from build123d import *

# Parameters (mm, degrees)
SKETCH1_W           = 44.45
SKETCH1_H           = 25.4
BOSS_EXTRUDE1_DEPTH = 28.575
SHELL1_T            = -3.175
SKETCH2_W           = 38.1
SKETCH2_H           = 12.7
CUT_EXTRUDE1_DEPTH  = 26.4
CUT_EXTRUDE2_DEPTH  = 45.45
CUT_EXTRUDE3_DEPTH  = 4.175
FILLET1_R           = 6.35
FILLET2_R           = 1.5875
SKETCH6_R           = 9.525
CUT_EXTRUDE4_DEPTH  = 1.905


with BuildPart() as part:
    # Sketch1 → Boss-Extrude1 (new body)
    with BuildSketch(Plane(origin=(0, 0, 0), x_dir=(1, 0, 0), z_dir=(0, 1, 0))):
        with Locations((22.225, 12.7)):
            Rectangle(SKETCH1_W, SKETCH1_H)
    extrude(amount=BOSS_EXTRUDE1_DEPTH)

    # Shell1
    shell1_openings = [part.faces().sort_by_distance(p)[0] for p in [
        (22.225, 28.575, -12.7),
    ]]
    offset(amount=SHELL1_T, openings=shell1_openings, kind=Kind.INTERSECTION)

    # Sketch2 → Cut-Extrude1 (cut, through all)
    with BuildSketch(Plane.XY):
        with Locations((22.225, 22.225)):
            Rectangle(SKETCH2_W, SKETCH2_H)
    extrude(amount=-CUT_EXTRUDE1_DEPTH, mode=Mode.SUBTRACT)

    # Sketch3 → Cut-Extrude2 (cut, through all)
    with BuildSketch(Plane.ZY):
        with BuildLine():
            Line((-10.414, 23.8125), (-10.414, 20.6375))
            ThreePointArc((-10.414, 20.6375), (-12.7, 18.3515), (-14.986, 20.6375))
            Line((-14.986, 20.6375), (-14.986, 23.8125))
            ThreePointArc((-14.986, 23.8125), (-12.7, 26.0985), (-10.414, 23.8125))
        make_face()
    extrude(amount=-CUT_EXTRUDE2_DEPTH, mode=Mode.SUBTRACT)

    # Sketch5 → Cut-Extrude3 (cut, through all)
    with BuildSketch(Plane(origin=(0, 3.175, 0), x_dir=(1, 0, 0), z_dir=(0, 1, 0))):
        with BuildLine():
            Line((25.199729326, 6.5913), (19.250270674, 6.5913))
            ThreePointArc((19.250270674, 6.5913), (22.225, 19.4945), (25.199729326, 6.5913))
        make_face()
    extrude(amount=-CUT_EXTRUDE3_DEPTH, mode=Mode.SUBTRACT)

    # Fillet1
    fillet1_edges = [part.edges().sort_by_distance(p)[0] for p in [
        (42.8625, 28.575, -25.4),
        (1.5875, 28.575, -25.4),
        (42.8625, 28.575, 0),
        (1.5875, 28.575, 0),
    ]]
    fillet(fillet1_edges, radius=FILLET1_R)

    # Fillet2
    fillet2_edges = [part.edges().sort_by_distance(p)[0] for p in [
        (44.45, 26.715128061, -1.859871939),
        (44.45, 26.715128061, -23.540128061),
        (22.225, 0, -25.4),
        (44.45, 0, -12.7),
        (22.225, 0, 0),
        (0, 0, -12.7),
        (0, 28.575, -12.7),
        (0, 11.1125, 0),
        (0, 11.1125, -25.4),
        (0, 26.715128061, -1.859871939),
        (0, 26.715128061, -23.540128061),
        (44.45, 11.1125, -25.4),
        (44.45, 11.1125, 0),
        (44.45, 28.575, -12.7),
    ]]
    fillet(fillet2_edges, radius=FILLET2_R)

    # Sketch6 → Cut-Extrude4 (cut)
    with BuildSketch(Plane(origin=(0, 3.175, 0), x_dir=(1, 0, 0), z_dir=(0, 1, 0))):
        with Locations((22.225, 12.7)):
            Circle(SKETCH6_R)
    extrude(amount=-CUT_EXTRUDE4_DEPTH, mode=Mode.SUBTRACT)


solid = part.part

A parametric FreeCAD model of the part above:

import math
import FreeCAD as App
import Part
import Sketcher
from FreeCAD import Vector
Q = App.Units.Quantity


def edges_at(feature, points):
    """Names of the edges that pass closest to the given points."""
    edges = feature.Shape.Edges
    near = lambda p: min(range(len(edges)), key=lambda i: edges[i].distToShape(Part.Vertex(*p))[0])
    return sorted({f"Edge{near(p) + 1}" for p in points})


def faces_at(feature, points):
    """Names of the faces that lie closest to the given points."""
    faces = feature.Shape.Faces
    near = lambda p: min(range(len(faces)), key=lambda i: faces[i].distToShape(Part.Vertex(*p))[0])
    return sorted({f"Face{near(p) + 1}" for p in points})

doc = App.newDocument("Part")
body = doc.addObject("PartDesign::Body", "Body")

sketch1 = body.newObject("Sketcher::SketchObject", "Sketch")
sketch1.AttachmentSupport = (doc.getObject("XZ_Plane"), [""])
sketch1.MapMode = "FlatFace"
sketch1.addGeometry(Part.LineSegment(Vector(0, -25.4, 0), Vector(0, 0, 0)), False)
sketch1.addGeometry(Part.LineSegment(Vector(0, 0, 0), Vector(44.45, 0, 0)), False)
sketch1.addGeometry(Part.LineSegment(Vector(44.45, 0, 0), Vector(44.45, -25.4, 0)), False)
sketch1.addGeometry(Part.LineSegment(Vector(44.45, -25.4, 0), Vector(0, -25.4, 0)), False)
sketch1.addConstraint(Sketcher.Constraint("Coincident", 0, 2, 1, 1))
sketch1.addConstraint(Sketcher.Constraint("Coincident", 1, 2, 2, 1))
sketch1.addConstraint(Sketcher.Constraint("Coincident", 2, 2, 3, 1))
sketch1.addConstraint(Sketcher.Constraint("Coincident", 3, 2, 0, 1))
sketch1.addConstraint(Sketcher.Constraint("Vertical", 0))
sketch1.addConstraint(Sketcher.Constraint("Horizontal", 1))
sketch1.addConstraint(Sketcher.Constraint("Vertical", 2))
sketch1.addConstraint(Sketcher.Constraint("Horizontal", 3))
sketch1.addConstraint(Sketcher.Constraint("Coincident", 0, 2, -1, 1))
sketch1.addConstraint(Sketcher.Constraint("DistanceY", 0, 1, 0, 2, Q("1 in")))
sketch1.addConstraint(Sketcher.Constraint("DistanceX", 1, 1, 1, 2, Q("1.75 in")))
pad1 = body.newObject("PartDesign::Pad", "Pad")
pad1.Profile = sketch1
pad1.Length = Q("1.125 in")
pad1.Reversed = True
doc.recompute()

thickness = body.newObject("PartDesign::Thickness", "Thickness")
thickness.Base = (pad1, faces_at(pad1, [(22.225, 28.575, -12.7)]))
thickness.Value = Q("0.125 in")
thickness.Reversed = True
thickness.Join = "Intersection"

sketch2 = body.newObject("Sketcher::SketchObject", "Sketch001")
sketch2.AttachmentSupport = (doc.getObject("XY_Plane"), [""])
sketch2.MapMode = "FlatFace"
sketch2.addGeometry(Part.LineSegment(Vector(3.175, 28.575, 0), Vector(3.175, 15.875, 0)), False)
sketch2.addGeometry(Part.LineSegment(Vector(3.175, 15.875, 0), Vector(41.275, 15.875, 0)), False)
sketch2.addGeometry(Part.LineSegment(Vector(41.275, 15.875, 0), Vector(41.275, 28.575, 0)), False)
sketch2.addGeometry(Part.LineSegment(Vector(41.275, 28.575, 0), Vector(3.175, 28.575, 0)), False)
sketch2.addConstraint(Sketcher.Constraint("Coincident", 0, 2, 1, 1))
sketch2.addConstraint(Sketcher.Constraint("Coincident", 1, 2, 2, 1))
sketch2.addConstraint(Sketcher.Constraint("Coincident", 2, 2, 3, 1))
sketch2.addConstraint(Sketcher.Constraint("Coincident", 3, 2, 0, 1))
sketch2.addConstraint(Sketcher.Constraint("Vertical", 0))
sketch2.addConstraint(Sketcher.Constraint("Horizontal", 1))
sketch2.addConstraint(Sketcher.Constraint("Vertical", 2))
sketch2.addConstraint(Sketcher.Constraint("Horizontal", 3))
sketch2.addConstraint(Sketcher.Constraint("DistanceX", 1, 1, 1, 2, Q("1.5 in")))
sketch2.addConstraint(Sketcher.Constraint("DistanceY", 0, 2, 0, 1, Q("0.5 in")))
sketch2.addConstraint(Sketcher.Constraint("DistanceX", -1, 1, 0, 2, Q("0.125 in")))
sketch2.addConstraint(Sketcher.Constraint("DistanceY", -1, 1, 0, 2, Q("0.625 in")))
pocket1 = body.newObject("PartDesign::Pocket", "Pocket")
pocket1.Profile = sketch2
pocket1.Type = "ThroughAll"

sketch3 = body.newObject("Sketcher::SketchObject", "Sketch002")
sketch3.AttachmentSupport = (doc.getObject("YZ_Plane"), [""])
sketch3.MapMode = "FlatFace"
sketch3.addGeometry(Part.LineSegment(Vector(20.6375, -10.414, 0), Vector(23.8125, -10.414, 0)), False)
sketch3.addGeometry(Part.ArcOfCircle(Part.Circle(Vector(23.8125, -12.7, 0), Vector(0, 0, 1), 2.286), math.radians(-90), math.radians(90)), False)
sketch3.addGeometry(Part.LineSegment(Vector(23.8125, -14.986, 0), Vector(20.6375, -14.986, 0)), False)
sketch3.addGeometry(Part.ArcOfCircle(Part.Circle(Vector(20.6375, -12.7, 0), Vector(0, 0, 1), 2.286), math.radians(90), math.radians(270)), False)
sketch3.addConstraint(Sketcher.Constraint("Tangent", 0, 2, 1, 2))
sketch3.addConstraint(Sketcher.Constraint("Tangent", 1, 1, 2, 1))
sketch3.addConstraint(Sketcher.Constraint("Tangent", 2, 2, 3, 2))
sketch3.addConstraint(Sketcher.Constraint("Tangent", 3, 1, 0, 1))
sketch3.addConstraint(Sketcher.Constraint("Horizontal", 0))
sketch3.addConstraint(Sketcher.Constraint("Horizontal", 2))
sketch3.addConstraint(Sketcher.Constraint("Radius", 1, Q("0.09 in")))
sketch3.addConstraint(Sketcher.Constraint("DistanceY", 1, 3, -1, 1, Q("0.5 in")))
sketch3.addConstraint(Sketcher.Constraint("DistanceX", 0, 1, 0, 2, Q("0.125 in")))
sketch3.addConstraint(Sketcher.Constraint("DistanceX", -1, 1, 1, 3, Q("0.9375 in")))
pocket2 = body.newObject("PartDesign::Pocket", "Pocket001")
pocket2.Profile = sketch3
pocket2.Type = "ThroughAll"
pocket2.Reversed = True

sketch4 = body.newObject("Sketcher::SketchObject", "Sketch003")
sketch4.AttachmentSupport = (doc.getObject("XZ_Plane"), [""])
sketch4.MapMode = "FlatFace"
sketch4.AttachmentOffset = App.Placement(Vector(0, 0, -0.125 * 25.4), App.Rotation())
sketch4.addGeometry(Part.LineSegment(Vector(19.250271, -6.5913, 0), Vector(25.199729, -6.5913, 0)), False)
sketch4.addGeometry(Part.ArcOfCircle(Part.Circle(Vector(22.225, -12.7, 0), Vector(0, 0, 1), 6.7945), math.radians(115.964508), math.radians(424.035492)), False)
sketch4.addConstraint(Sketcher.Constraint("Coincident", 0, 1, 1, 1))
sketch4.addConstraint(Sketcher.Constraint("Coincident", 1, 2, 0, 2))
sketch4.addConstraint(Sketcher.Constraint("Horizontal", 0))
sketch4.addConstraint(Sketcher.Constraint("DistanceY", 1, 3, -1, 1, Q("0.5 in")))
sketch4.addConstraint(Sketcher.Constraint("Radius", 1, Q("0.2675 in")))
sketch4.addConstraint(Sketcher.Constraint("DistanceX", -1, 1, 1, 3, Q("0.875 in")))
sketch4.addConstraint(Sketcher.Constraint("DistanceY", 0, 1, -1, 1, Q("0.2595 in")))
pocket3 = body.newObject("PartDesign::Pocket", "Pocket002")
pocket3.Profile = sketch4
pocket3.Type = "ThroughAll"
pocket3.Reversed = True
doc.recompute()

fillet = body.newObject("PartDesign::Fillet", "Fillet")
fillet.Base = (pocket3, edges_at(pocket3, [
    (42.862, 28.575, -25.4),
    (1.587, 28.575, -25.4),
    (42.862, 28.575, 0),
    (1.587, 28.575, 0),
]))
fillet.Radius = Q("0.25 in")
doc.recompute()

fillet2 = body.newObject("PartDesign::Fillet", "Fillet001")
fillet2.Base = (fillet, edges_at(fillet, [
    (44.45, 26.715, -1.86),
    (44.45, 26.715, -23.54),
    (22.225, 0, -25.4),
    (44.45, 0, -12.7),
    (22.225, 0, 0),
    (0, 0, -12.7),
    (0, 28.575, -12.7),
    (0, 11.113, 0),
    (0, 11.113, -25.4),
    (0, 26.715, -1.86),
    (0, 26.715, -23.54),
    (44.45, 11.113, -25.4),
    (44.45, 11.113, 0),
    (44.45, 28.575, -12.7),
]))
fillet2.Radius = Q("0.0625 in")

sketch5 = body.newObject("Sketcher::SketchObject", "Sketch004")
sketch5.AttachmentSupport = (doc.getObject("XZ_Plane"), [""])
sketch5.MapMode = "FlatFace"
sketch5.AttachmentOffset = App.Placement(Vector(0, 0, -0.125 * 25.4), App.Rotation())
sketch5.addGeometry(Part.Circle(Vector(22.225, -12.7, 0), Vector(0, 0, 1), 9.525), False)
sketch5.addConstraint(Sketcher.Constraint("Diameter", 0, Q("0.75 in")))
sketch5.addConstraint(Sketcher.Constraint("DistanceY", 0, 3, -1, 1, Q("0.5 in")))
sketch5.addConstraint(Sketcher.Constraint("DistanceX", -1, 1, 0, 3, Q("0.875 in")))
pocket4 = body.newObject("PartDesign::Pocket", "Pocket003")
pocket4.Profile = sketch5
pocket4.Length = Q("0.075 in")
pocket4.Reversed = True

doc.recompute()
